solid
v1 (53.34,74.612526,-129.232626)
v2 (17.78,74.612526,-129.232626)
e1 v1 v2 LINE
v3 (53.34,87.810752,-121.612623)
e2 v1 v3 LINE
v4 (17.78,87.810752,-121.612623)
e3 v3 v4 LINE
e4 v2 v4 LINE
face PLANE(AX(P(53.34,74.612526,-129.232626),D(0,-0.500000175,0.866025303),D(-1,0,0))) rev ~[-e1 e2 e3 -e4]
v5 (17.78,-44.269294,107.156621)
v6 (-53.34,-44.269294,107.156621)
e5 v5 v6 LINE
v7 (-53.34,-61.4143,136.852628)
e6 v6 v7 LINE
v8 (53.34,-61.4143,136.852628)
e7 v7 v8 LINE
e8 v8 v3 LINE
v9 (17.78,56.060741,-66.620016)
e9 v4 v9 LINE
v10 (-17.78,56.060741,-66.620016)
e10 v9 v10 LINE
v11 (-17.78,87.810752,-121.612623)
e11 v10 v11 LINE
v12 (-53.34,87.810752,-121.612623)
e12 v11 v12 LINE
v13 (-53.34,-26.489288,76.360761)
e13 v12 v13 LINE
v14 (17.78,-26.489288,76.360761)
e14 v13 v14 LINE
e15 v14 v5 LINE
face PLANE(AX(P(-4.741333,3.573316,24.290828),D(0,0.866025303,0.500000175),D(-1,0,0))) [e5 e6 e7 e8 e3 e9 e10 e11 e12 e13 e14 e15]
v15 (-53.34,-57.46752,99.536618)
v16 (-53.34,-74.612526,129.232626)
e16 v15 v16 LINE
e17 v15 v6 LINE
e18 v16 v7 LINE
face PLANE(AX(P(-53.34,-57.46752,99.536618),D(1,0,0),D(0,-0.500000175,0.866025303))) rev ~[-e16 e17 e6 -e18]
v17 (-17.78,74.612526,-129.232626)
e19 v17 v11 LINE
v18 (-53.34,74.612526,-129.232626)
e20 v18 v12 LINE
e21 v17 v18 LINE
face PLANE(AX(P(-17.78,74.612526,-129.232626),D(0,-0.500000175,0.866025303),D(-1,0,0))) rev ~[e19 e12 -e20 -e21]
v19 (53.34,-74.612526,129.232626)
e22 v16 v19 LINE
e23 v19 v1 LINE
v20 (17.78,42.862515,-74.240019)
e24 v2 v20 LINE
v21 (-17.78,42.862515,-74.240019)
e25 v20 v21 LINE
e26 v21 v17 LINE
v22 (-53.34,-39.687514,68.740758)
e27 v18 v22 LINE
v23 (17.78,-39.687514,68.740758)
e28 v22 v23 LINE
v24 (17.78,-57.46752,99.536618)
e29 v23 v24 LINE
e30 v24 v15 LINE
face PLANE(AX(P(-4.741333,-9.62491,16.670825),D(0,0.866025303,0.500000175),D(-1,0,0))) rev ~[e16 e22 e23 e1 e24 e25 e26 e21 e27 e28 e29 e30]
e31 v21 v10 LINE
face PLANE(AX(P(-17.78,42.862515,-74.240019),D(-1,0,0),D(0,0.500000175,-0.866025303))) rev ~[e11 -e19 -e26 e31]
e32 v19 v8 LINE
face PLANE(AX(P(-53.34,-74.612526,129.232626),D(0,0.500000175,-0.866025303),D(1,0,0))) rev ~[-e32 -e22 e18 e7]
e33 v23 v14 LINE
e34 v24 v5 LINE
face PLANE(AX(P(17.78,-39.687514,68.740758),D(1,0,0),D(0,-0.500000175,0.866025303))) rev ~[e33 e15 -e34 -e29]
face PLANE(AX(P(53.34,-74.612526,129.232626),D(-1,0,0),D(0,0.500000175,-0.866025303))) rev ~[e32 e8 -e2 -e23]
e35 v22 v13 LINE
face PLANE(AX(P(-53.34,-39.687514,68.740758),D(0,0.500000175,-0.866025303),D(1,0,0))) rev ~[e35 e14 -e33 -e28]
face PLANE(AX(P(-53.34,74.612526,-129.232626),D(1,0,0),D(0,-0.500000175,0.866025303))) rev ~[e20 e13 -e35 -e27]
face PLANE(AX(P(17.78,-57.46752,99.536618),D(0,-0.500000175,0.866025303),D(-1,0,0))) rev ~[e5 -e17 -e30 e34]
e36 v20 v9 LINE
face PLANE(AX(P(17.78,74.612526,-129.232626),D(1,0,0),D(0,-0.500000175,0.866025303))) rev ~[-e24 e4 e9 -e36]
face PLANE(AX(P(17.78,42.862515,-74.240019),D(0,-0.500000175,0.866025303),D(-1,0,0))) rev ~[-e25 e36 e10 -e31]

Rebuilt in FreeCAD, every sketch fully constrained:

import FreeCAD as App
import Part
import Sketcher

V = App.Vector
Q = App.Units.Quantity

doc = App.newDocument("Part")
body = doc.addObject("PartDesign::Body", "Body")

sketch1 = body.newObject("Sketcher::SketchObject", "Sketch")
sketch1.Placement = App.Placement(V(0, 0, 0), App.Rotation(V(-1, 0, 0), V(0, -0.500000175, 0.866025303), V(0, 0.866025303, 0.500000175), "ZXY"))
sketch1.addGeometry([
    Part.LineSegment(V(53.34, 149.225, 0), V(-53.34, 149.225, 0)),
    Part.LineSegment(V(-53.34, 149.225, 0), V(-53.34, -149.225, 0)),
    Part.LineSegment(V(-53.34, -149.225, 0), V(-17.78, -149.225, 0)),
    Part.LineSegment(V(-17.78, -149.225, 0), V(-17.78, -85.725, 0)),
    Part.LineSegment(V(-17.78, -85.725, 0), V(17.78, -85.725, 0)),
    Part.LineSegment(V(17.78, -85.725, 0), V(17.78, -149.225, 0)),
    Part.LineSegment(V(17.78, -149.225, 0), V(53.34, -149.225, 0)),
    Part.LineSegment(V(53.34, -149.225, 0), V(53.34, 79.375, 0)),
    Part.LineSegment(V(53.34, 79.375, 0), V(-17.78, 79.375, 0)),
    Part.LineSegment(V(-17.78, 79.375, 0), V(-17.78, 114.935, 0)),
    Part.LineSegment(V(-17.78, 114.935, 0), V(53.34, 114.935, 0)),
    Part.LineSegment(V(53.34, 114.935, 0), V(53.34, 149.225, 0)),
], False)
sketch1.addConstraint([
    Sketcher.Constraint("Coincident", 0, 2, 1, 1),
    Sketcher.Constraint("Coincident", 1, 2, 2, 1),
    Sketcher.Constraint("Coincident", 2, 2, 3, 1),
    Sketcher.Constraint("Coincident", 3, 2, 4, 1),
    Sketcher.Constraint("Coincident", 4, 2, 5, 1),
    Sketcher.Constraint("Coincident", 5, 2, 6, 1),
    Sketcher.Constraint("Coincident", 6, 2, 7, 1),
    Sketcher.Constraint("Coincident", 7, 2, 8, 1),
    Sketcher.Constraint("Coincident", 8, 2, 9, 1),
    Sketcher.Constraint("Coincident", 9, 2, 10, 1),
    Sketcher.Constraint("Coincident", 10, 2, 11, 1),
    Sketcher.Constraint("Coincident", 11, 2, 0, 1),
    Sketcher.Constraint("Horizontal", 0),
    Sketcher.Constraint("Vertical", 1),
    Sketcher.Constraint("Horizontal", 2),
    Sketcher.Constraint("Vertical", 3),
    Sketcher.Constraint("Horizontal", 4),
    Sketcher.Constraint("Vertical", 5),
    Sketcher.Constraint("Horizontal", 6),
    Sketcher.Constraint("Vertical", 7),
    Sketcher.Constraint("Horizontal", 8),
    Sketcher.Constraint("Vertical", 9),
    Sketcher.Constraint("Horizontal", 10),
    Sketcher.Constraint("Vertical", 11),
    Sketcher.Constraint("Symmetric", 0, 2, 6, 2, -1, 1),
    Sketcher.Constraint("Symmetric", 1, 2, 11, 2, -1, 1),
    Sketcher.Constraint("Vertical", 3, 2, 8, 2),
    Sketcher.Constraint("Equal", 2, 4),
    Sketcher.Constraint("Equal", 4, 6),
    Sketcher.Constraint("Equal", 6, 9),
    Sketcher.Constraint("DistanceY", 7, 1, 7, 2, Q("9 in")),
    Sketcher.Constraint("DistanceX", 0, 2, 0, 1, Q("4.2 in")),
    Sketcher.Constraint("DistanceY", 3, 1, 3, 2, Q("2.5 in")),
    Sketcher.Constraint("DistanceY", 1, 2, 1, 1, Q("11.75 in")),
])
pad1 = body.newObject("PartDesign::Pad", "Pad")
pad1.Profile = sketch1
pad1.Length = Q("0.6 in")

doc.recompute()
